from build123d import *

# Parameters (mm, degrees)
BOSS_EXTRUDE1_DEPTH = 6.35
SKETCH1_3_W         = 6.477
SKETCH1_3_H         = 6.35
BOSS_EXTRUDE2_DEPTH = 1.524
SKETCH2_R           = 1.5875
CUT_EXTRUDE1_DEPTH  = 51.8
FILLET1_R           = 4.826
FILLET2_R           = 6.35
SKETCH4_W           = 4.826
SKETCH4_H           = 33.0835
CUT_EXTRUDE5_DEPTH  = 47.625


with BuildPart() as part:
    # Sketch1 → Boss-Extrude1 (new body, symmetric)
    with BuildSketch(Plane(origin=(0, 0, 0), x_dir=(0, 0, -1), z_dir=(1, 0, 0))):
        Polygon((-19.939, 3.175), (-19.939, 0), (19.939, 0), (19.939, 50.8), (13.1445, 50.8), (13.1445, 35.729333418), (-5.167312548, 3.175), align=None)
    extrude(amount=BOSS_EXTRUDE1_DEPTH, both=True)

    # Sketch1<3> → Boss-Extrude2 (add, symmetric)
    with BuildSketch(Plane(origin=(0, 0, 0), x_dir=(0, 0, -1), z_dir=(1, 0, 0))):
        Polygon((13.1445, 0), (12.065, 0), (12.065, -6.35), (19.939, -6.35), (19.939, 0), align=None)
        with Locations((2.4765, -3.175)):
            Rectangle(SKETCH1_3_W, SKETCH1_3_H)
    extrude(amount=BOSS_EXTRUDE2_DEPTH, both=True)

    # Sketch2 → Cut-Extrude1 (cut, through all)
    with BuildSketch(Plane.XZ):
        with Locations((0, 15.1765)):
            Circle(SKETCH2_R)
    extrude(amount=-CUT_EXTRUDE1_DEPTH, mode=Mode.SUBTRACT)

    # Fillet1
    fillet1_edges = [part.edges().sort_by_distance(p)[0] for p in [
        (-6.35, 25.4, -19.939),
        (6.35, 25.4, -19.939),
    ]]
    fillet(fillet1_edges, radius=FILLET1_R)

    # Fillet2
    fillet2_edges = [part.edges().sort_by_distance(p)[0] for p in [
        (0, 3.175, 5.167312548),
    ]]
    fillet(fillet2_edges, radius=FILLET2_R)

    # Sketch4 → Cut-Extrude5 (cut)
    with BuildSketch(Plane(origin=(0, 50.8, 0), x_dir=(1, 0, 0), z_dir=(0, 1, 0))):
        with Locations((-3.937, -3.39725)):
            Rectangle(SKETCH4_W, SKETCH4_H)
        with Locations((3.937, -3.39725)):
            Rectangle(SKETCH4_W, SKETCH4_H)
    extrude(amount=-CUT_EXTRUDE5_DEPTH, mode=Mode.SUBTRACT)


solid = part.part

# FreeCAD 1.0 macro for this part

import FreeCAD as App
import Part
import Sketcher
Q = App.Units.Quantity


def edges_at(feature, points):
    """Names of the edges that pass closest to the given points."""
    edges = feature.Shape.Edges
    near = lambda p: min(range(len(edges)), key=lambda i: edges[i].distToShape(Part.Vertex(*p))[0])
    return sorted({f"Edge{near(p) + 1}" for p in points})

doc = App.newDocument("Part")
body = doc.addObject("PartDesign::Body", "Body")

sketch1 = body.newObject("Sketcher::SketchObject", "Sketch")
sketch1.AttachmentSupport = (doc.getObject("YZ_Plane"), [""])
sketch1.MapMode = "FlatFace"
sketch1.addGeometry([
    Part.LineSegment(App.Vector(3.2, 19.9, 0), App.Vector(0, 19.9, 0)),
    Part.LineSegment(App.Vector(0, 19.9, 0), App.Vector(0, -19.9, 0)),
    Part.LineSegment(App.Vector(0, -19.9, 0), App.Vector(50.8, -19.9, 0)),
    Part.LineSegment(App.Vector(50.8, -19.9, 0), App.Vector(50.8, -13.1, 0)),
    Part.LineSegment(App.Vector(50.8, -13.1, 0), App.Vector(35.7, -13.1, 0)),
    Part.LineSegment(App.Vector(35.7, -13.1, 0), App.Vector(3.2, 5.2, 0)),
    Part.LineSegment(App.Vector(3.2, 5.2, 0), App.Vector(3.2, 19.9, 0)),
], False)
sketch1.addConstraint([
    Sketcher.Constraint("Coincident", 0, 2, 1, 1),
    Sketcher.Constraint("Coincident", 1, 2, 2, 1),
    Sketcher.Constraint("Coincident", 2, 2, 3, 1),
    Sketcher.Constraint("Coincident", 3, 2, 4, 1),
    Sketcher.Constraint("Coincident", 4, 2, 5, 1),
    Sketcher.Constraint("Coincident", 5, 2, 6, 1),
    Sketcher.Constraint("Coincident", 6, 2, 0, 1),
    Sketcher.Constraint("Horizontal", 0),
    Sketcher.Constraint("Vertical", 1),
    Sketcher.Constraint("Horizontal", 2),
    Sketcher.Constraint("Vertical", 3),
    Sketcher.Constraint("Horizontal", 4),
    Sketcher.Constraint("Vertical", 6),
    Sketcher.Constraint("Symmetric", 0, 2, 1, 2, -1, 1),
    Sketcher.Constraint("DistanceX", 2, 1, 2, 2, Q("2 in")),
    Sketcher.Constraint("DistanceY", 1, 2, 1, 1, Q("1.57 in")),
    Sketcher.Constraint("DistanceX", 0, 2, 0, 1, Q("0.125 in")),
    Sketcher.Constraint("DistanceY", 3, 1, 3, 2, Q("0.2675 in")),
    Sketcher.Constraint("DistanceX", 4, 2, 4, 1, 15.070667),
    Sketcher.Constraint("DistanceY", 6, 1, 6, 2, 14.771687),
])
pad1 = body.newObject("PartDesign::Pad", "Pad")
pad1.Profile = sketch1
pad1.Length = Q("0.5 in")
pad1.Midplane = True

sketch2 = body.newObject("Sketcher::SketchObject", "Sketch001")
sketch2.AttachmentSupport = (doc.getObject("YZ_Plane"), [""])
sketch2.MapMode = "FlatFace"
sketch2.addGeometry([
    Part.LineSegment(App.Vector(0, -12, 0), App.Vector(-6, -12, 0)),
    Part.LineSegment(App.Vector(-6, -12, 0), App.Vector(-6, -20, 0)),
    Part.LineSegment(App.Vector(-6, -20, 0), App.Vector(0, -20, 0)),
    Part.LineSegment(App.Vector(0, -20, 0), App.Vector(0, -12, 0)),
    Part.LineSegment(App.Vector(0, 1, 0), App.Vector(-6, 1, 0)),
    Part.LineSegment(App.Vector(-6, 1, 0), App.Vector(-6, -6, 0)),
    Part.LineSegment(App.Vector(-6, -6, 0), App.Vector(0, -6, 0)),
    Part.LineSegment(App.Vector(0, -6, 0), App.Vector(0, 1, 0)),
], False)
sketch2.addConstraint([
    Sketcher.Constraint("Coincident", 0, 2, 1, 1),
    Sketcher.Constraint("Coincident", 1, 2, 2, 1),
    Sketcher.Constraint("Coincident", 2, 2, 3, 1),
    Sketcher.Constraint("Coincident", 3, 2, 0, 1),
    Sketcher.Constraint("Coincident", 4, 2, 5, 1),
    Sketcher.Constraint("Coincident", 5, 2, 6, 1),
    Sketcher.Constraint("Coincident", 6, 2, 7, 1),
    Sketcher.Constraint("Coincident", 7, 2, 4, 1),
    Sketcher.Constraint("Horizontal", 0),
    Sketcher.Constraint("Vertical", 1),
    Sketcher.Constraint("Horizontal", 2),
    Sketcher.Constraint("Vertical", 3),
    Sketcher.Constraint("Horizontal", 4),
    Sketcher.Constraint("Vertical", 5),
    Sketcher.Constraint("Horizontal", 6),
    Sketcher.Constraint("Vertical", 7),
    Sketcher.Constraint("PointOnObject", 2, 2, -2),
    Sketcher.Constraint("PointOnObject", 6, 2, -2),
    Sketcher.Constraint("Vertical", 1, 2, 4, 2),
    Sketcher.Constraint("DistanceX", 0, 2, 0, 1, Q("0.25 in")),
    Sketcher.Constraint("DistanceY", 1, 2, 1, 1, Q("0.31 in")),
    Sketcher.Constraint("DistanceY", 5, 2, 5, 1, Q("0.255 in")),
    Sketcher.Constraint("DistanceY", -1, 1, 4, 2, Q("0.03 in")),
    Sketcher.Constraint("DistanceY", 0, 2, 5, 2, Q("0.25 in")),
])
pad2 = body.newObject("PartDesign::Pad", "Pad001")
pad2.Profile = sketch2
pad2.Length = Q("0.12 in")
pad2.Midplane = True

sketch3 = body.newObject("Sketcher::SketchObject", "Sketch002")
sketch3.AttachmentSupport = (doc.getObject("XZ_Plane"), [""])
sketch3.MapMode = "FlatFace"
sketch3.addGeometry(Part.Circle(App.Vector(0, 15.2, 0), App.Vector(0, 0, 1), 1.6), False)
sketch3.addConstraint([
    Sketcher.Constraint("PointOnObject", 0, 3, -2),
    Sketcher.Constraint("Diameter", 0, Q("0.125 in")),
    Sketcher.Constraint("DistanceY", -1, 1, 0, 3, Q("0.5975 in")),
])
pocket1 = body.newObject("PartDesign::Pocket", "Pocket")
pocket1.Profile = sketch3
pocket1.Type = "ThroughAll"
doc.recompute()

fillet = body.newObject("PartDesign::Fillet", "Fillet")
fillet.Base = (pocket1, edges_at(pocket1, [(-6.35, 25.4, -19.939), (6.35, 25.4, -19.939)]))
fillet.Radius = Q("0.19 in")
doc.recompute()

fillet2 = body.newObject("PartDesign::Fillet", "Fillet001")
fillet2.Base = (fillet, edges_at(fillet, [(0, 3.175, 5.167)]))
fillet2.Radius = Q("0.25 in")

sketch4 = body.newObject("Sketcher::SketchObject", "Sketch003")
sketch4.AttachmentSupport = (doc.getObject("XZ_Plane"), [""])
sketch4.MapMode = "FlatFace"
sketch4.AttachmentOffset = App.Placement(App.Vector(0, 0, -2 * 25.4), App.Rotation())
sketch4.addGeometry([
    Part.LineSegment(App.Vector(-6.3, -13.1, 0), App.Vector(-6.3, 19.9, 0)),
    Part.LineSegment(App.Vector(-6.3, 19.9, 0), App.Vector(-1.5, 19.9, 0)),
    Part.LineSegment(App.Vector(-1.5, 19.9, 0), App.Vector(-1.5, -13.1, 0)),
    Part.LineSegment(App.Vector(-1.5, -13.1, 0), App.Vector(-6.3, -13.1, 0)),
    Part.LineSegment(App.Vector(1.5, -13.1, 0), App.Vector(1.5, 19.9, 0)),
    Part.LineSegment(App.Vector(1.5, 19.9, 0), App.Vector(6.3, 19.9, 0)),
    Part.LineSegment(App.Vector(6.3, 19.9, 0), App.Vector(6.3, -13.1, 0)),
    Part.LineSegment(App.Vector(6.3, -13.1, 0), App.Vector(1.5, -13.1, 0)),
], False)
sketch4.addConstraint([
    Sketcher.Constraint("Coincident", 0, 2, 1, 1),
    Sketcher.Constraint("Coincident", 1, 2, 2, 1),
    Sketcher.Constraint("Coincident", 2, 2, 3, 1),
    Sketcher.Constraint("Coincident", 3, 2, 0, 1),
    Sketcher.Constraint("Coincident", 4, 2, 5, 1),
    Sketcher.Constraint("Coincident", 5, 2, 6, 1),
    Sketcher.Constraint("Coincident", 6, 2, 7, 1),
    Sketcher.Constraint("Coincident", 7, 2, 4, 1),
    Sketcher.Constraint("Vertical", 0),
    Sketcher.Constraint("Horizontal", 1),
    Sketcher.Constraint("Vertical", 2),
    Sketcher.Constraint("Horizontal", 3),
    Sketcher.Constraint("Vertical", 4),
    Sketcher.Constraint("Horizontal", 5),
    Sketcher.Constraint("Vertical", 6),
    Sketcher.Constraint("Horizontal", 7),
    Sketcher.Constraint("Symmetric", 1, 2, 4, 2, -2),
    Sketcher.Constraint("Symmetric", 3, 2, 6, 2, -2),
    Sketcher.Constraint("DistanceX", 1, 1, 1, 2, Q("0.19 in")),
    Sketcher.Constraint("DistanceX", 0, 2, 5, 2, Q("0.5 in")),
    Sketcher.Constraint("DistanceY", 0, 1, 0, 2, Q("1.3025 in")),
    Sketcher.Constraint("DistanceY", -1, 1, 0, 2, Q("0.785 in")),
])
pocket2 = body.newObject("PartDesign::Pocket", "Pocket001")
pocket2.Profile = sketch4
pocket2.Length = Q("1.875 in")
pocket2.Reversed = True

doc.recompute()
